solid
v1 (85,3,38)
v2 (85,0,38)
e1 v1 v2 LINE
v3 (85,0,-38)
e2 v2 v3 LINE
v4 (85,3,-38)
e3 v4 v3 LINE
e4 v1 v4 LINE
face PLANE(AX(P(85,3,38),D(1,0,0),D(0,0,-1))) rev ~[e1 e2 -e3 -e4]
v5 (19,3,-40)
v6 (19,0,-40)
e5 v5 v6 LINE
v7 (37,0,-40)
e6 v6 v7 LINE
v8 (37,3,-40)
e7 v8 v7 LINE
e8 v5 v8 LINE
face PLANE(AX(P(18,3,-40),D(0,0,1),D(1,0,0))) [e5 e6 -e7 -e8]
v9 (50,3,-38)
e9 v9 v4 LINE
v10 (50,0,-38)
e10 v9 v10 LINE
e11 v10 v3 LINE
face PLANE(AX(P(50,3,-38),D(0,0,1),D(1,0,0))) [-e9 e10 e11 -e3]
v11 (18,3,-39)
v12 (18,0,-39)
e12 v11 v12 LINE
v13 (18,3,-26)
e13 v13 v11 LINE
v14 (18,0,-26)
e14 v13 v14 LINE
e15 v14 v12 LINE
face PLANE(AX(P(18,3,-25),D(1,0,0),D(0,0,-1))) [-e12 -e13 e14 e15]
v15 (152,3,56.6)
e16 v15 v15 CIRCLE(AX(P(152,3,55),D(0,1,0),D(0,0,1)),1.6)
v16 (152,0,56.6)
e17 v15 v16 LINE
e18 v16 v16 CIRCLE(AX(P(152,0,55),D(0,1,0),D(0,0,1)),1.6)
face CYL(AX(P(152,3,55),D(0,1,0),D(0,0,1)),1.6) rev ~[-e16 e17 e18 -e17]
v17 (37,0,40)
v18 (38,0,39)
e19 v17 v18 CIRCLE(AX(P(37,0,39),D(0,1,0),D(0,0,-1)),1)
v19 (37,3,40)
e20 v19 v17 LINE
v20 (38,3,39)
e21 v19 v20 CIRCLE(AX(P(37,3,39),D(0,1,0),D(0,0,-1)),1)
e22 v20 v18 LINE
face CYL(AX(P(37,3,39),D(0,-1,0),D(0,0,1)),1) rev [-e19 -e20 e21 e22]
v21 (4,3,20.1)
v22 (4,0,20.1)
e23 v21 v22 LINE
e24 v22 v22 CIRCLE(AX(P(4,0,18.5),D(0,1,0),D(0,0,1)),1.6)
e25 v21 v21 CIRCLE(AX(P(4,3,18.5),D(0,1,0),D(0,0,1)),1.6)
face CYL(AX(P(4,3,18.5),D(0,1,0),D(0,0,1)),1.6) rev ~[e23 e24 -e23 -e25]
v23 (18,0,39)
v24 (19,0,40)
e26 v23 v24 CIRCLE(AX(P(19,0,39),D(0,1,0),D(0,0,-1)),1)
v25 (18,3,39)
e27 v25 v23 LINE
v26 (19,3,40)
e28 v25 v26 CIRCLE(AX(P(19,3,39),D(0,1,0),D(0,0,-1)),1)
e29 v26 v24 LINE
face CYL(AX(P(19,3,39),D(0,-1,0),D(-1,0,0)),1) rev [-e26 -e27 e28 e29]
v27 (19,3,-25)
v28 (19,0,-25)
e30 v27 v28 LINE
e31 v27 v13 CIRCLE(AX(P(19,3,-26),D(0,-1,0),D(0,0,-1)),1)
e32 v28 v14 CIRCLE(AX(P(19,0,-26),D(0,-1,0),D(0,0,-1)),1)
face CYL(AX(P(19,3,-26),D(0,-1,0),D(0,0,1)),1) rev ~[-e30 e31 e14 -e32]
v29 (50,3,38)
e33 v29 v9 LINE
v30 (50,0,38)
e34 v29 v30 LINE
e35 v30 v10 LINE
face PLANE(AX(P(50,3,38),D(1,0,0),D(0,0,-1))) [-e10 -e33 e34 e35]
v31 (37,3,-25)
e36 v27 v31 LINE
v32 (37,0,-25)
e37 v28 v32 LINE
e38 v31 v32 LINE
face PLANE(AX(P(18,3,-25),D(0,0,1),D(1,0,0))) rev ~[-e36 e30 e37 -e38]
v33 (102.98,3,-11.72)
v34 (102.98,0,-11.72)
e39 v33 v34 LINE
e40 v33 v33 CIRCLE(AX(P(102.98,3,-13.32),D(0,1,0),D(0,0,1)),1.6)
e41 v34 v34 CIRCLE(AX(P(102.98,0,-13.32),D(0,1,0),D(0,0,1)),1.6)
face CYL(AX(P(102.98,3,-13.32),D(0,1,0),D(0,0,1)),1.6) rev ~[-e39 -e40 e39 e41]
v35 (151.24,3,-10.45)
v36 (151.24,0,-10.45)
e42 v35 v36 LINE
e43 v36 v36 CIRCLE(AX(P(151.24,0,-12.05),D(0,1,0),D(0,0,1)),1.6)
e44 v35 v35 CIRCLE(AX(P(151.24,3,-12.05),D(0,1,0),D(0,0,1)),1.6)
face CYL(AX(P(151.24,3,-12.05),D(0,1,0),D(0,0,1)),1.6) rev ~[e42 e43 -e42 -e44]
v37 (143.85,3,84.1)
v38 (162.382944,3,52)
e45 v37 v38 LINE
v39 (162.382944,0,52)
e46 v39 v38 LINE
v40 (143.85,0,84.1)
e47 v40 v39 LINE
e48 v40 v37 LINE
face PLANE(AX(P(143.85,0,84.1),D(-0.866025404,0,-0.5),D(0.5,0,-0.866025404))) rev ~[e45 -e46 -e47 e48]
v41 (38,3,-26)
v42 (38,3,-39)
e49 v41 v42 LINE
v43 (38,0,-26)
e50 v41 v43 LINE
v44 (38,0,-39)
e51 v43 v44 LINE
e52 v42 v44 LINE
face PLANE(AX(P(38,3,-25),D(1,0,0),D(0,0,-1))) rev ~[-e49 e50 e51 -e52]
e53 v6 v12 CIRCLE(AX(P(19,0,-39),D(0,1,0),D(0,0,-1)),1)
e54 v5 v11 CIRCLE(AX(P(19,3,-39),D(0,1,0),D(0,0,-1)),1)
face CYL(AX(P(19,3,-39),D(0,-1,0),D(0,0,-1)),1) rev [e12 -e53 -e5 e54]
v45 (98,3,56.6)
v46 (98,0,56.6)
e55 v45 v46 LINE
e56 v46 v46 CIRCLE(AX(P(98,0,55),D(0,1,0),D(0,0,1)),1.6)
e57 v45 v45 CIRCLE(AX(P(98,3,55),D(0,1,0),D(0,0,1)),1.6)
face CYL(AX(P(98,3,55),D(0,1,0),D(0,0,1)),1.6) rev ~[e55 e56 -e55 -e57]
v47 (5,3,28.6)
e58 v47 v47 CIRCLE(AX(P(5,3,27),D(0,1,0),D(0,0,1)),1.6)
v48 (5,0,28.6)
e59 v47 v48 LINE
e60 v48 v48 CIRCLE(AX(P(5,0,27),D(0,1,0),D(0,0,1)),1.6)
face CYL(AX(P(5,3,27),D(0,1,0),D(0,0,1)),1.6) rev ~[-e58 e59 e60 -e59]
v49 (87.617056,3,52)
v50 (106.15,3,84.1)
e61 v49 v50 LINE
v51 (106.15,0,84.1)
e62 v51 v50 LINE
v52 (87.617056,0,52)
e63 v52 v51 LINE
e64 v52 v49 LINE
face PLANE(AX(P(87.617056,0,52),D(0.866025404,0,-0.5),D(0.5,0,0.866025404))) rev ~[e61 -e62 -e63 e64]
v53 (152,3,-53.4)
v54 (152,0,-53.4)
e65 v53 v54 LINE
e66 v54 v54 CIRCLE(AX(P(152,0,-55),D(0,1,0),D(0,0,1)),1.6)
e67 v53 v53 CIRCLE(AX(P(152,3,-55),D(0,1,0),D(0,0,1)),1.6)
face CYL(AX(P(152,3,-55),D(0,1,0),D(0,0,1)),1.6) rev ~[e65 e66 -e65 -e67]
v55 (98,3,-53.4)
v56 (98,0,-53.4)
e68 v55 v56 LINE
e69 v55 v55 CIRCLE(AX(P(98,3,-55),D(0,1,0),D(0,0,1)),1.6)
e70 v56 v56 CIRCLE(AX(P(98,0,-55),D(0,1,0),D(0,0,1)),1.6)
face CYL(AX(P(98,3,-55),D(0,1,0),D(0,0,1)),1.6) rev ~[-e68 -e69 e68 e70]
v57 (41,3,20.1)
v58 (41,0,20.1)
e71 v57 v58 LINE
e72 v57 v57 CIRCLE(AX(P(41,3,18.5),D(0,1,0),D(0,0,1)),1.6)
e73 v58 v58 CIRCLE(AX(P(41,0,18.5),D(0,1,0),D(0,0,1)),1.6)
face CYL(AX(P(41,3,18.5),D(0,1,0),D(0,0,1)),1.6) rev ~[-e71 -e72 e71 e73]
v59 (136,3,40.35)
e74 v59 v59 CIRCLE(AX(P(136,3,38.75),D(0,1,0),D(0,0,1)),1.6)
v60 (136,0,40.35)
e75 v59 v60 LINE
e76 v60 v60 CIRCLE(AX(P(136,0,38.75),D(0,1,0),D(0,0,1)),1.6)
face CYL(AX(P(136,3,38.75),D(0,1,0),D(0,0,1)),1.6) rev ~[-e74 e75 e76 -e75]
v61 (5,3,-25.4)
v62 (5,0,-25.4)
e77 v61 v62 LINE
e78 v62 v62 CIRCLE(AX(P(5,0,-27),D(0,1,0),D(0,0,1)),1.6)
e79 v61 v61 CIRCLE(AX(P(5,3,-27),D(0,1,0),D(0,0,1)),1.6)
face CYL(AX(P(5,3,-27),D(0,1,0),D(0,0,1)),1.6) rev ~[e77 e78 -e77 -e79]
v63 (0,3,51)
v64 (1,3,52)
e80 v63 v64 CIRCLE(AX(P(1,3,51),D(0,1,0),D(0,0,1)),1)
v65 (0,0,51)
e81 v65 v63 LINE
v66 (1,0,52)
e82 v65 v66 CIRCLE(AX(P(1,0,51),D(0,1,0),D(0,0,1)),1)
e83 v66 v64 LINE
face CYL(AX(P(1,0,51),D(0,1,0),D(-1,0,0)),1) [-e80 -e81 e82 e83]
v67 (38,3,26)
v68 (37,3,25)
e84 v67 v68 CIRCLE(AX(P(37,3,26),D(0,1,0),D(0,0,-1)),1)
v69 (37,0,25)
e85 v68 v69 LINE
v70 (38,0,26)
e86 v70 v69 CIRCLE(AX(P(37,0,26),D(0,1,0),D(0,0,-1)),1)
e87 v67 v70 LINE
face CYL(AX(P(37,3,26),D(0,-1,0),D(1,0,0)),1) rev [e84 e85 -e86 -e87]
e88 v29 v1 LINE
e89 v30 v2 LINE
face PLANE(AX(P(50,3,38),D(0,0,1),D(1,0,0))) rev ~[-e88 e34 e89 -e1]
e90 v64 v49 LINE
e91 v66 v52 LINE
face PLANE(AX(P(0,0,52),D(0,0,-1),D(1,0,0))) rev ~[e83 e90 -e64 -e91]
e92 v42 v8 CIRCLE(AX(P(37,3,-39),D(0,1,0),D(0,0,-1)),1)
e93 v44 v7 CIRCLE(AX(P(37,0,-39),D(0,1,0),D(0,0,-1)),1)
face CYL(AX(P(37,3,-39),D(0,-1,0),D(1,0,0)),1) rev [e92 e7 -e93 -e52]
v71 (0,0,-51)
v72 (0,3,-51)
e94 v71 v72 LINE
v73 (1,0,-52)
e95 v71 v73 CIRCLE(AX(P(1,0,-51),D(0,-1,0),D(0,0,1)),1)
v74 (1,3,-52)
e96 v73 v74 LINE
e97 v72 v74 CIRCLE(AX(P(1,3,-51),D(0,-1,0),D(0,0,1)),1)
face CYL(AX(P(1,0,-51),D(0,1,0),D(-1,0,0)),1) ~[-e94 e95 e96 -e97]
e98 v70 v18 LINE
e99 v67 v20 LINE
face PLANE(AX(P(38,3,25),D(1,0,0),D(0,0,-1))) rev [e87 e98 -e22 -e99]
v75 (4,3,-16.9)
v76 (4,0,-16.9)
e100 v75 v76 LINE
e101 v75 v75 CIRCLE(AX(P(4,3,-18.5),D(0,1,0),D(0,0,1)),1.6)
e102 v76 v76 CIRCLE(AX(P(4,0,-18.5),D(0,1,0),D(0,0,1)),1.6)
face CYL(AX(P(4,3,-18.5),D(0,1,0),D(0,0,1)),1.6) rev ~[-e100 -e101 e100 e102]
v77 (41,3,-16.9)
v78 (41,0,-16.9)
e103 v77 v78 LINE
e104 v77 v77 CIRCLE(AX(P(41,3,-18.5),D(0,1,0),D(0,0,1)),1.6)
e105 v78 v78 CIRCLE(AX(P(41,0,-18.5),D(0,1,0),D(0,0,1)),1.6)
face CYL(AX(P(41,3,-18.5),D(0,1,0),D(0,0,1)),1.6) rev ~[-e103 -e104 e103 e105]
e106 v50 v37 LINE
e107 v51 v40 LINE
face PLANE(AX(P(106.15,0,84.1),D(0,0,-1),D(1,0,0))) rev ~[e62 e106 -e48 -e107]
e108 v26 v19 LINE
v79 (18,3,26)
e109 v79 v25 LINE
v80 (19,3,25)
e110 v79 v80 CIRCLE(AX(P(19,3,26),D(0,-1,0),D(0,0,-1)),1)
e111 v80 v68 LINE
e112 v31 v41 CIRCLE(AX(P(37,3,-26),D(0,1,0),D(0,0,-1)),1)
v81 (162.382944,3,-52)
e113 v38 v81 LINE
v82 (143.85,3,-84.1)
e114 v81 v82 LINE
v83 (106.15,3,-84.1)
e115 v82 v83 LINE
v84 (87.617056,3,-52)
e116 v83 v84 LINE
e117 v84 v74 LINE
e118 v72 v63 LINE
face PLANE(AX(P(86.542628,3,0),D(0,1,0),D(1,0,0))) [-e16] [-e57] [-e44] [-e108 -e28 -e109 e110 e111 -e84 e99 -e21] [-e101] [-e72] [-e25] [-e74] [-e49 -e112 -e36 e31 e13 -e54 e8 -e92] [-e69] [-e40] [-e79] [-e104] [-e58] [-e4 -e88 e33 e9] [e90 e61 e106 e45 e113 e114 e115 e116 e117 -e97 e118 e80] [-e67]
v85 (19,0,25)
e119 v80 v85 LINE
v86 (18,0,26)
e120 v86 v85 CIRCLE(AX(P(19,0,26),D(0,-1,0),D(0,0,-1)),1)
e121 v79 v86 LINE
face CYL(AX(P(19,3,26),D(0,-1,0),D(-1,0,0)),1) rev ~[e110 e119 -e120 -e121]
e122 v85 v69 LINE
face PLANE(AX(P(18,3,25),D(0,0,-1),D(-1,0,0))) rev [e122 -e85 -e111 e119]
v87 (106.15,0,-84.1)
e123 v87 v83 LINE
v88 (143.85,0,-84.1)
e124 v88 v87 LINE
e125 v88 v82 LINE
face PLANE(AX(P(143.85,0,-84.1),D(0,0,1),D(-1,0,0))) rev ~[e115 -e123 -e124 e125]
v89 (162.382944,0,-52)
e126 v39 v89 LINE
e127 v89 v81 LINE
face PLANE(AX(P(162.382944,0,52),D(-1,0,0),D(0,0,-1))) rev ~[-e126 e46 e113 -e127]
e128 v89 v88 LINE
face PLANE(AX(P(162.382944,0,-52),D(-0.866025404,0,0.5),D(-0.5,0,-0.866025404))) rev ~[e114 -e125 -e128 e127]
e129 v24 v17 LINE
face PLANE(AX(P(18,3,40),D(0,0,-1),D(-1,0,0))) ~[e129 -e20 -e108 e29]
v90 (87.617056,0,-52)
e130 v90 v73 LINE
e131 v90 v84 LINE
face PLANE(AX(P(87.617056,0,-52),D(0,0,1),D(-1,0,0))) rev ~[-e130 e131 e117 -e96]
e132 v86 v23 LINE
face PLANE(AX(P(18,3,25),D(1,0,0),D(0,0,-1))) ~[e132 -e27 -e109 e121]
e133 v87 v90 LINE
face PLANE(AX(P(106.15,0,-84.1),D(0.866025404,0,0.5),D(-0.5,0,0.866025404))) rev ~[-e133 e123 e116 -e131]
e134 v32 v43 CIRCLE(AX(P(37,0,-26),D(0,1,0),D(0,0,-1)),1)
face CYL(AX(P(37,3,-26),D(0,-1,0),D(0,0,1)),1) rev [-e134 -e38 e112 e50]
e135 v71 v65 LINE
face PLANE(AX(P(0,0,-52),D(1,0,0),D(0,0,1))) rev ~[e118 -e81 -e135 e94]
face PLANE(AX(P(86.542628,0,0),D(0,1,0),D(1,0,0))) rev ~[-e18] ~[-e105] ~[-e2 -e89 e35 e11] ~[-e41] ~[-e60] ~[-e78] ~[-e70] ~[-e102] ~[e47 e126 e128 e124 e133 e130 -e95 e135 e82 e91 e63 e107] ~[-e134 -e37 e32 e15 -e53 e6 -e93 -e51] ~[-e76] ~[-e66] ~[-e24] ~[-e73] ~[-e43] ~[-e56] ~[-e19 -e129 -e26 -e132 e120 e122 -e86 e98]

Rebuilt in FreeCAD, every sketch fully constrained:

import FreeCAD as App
import Part
import Sketcher
Q = App.Units.Quantity


def edges_at(feature, points):
    """Names of the edges that pass closest to the given points."""
    edges = feature.Shape.Edges
    near = lambda p: min(range(len(edges)), key=lambda i: edges[i].distToShape(Part.Vertex(*p))[0])
    return sorted({f"Edge{near(p) + 1}" for p in points})


def add_polygon(sketch, points):
    """Adds a closed chain of lines whose ends are joined by coincident constraints."""
    first, n = sketch.GeometryCount, len(points)
    for a, b in zip(points, points[1:] + points[:1]):
        sketch.addGeometry(Part.LineSegment(App.Vector(*a, 0), App.Vector(*b, 0)), False)
    for i in range(n):
        sketch.addConstraint(Sketcher.Constraint("Coincident", first + i, 2, first + (i + 1) % n, 1))

doc = App.newDocument("Part")
body = doc.addObject("PartDesign::Body", "Body")

sketch1 = body.newObject("Sketcher::SketchObject", "Sketch")
sketch1.AttachmentSupport = (doc.getObject("XZ_Plane"), [""])
sketch1.MapMode = "FlatFace"
add_polygon(sketch1, [(0, -52), (0, 52), (88, 52), (106, 84), (144, 84), (162, 52), (162, -52), (144, -84), (106, -84), (88, -52)])
sketch1.addConstraint([
    Sketcher.Constraint("Vertical", 0),
    Sketcher.Constraint("Horizontal", 1),
    Sketcher.Constraint("Horizontal", 3),
    Sketcher.Constraint("Vertical", 5),
    Sketcher.Constraint("Horizontal", 7),
    Sketcher.Constraint("Horizontal", 9),
    Sketcher.Constraint("Symmetric", 0, 2, 9, 2, -1, 1),
    Sketcher.Constraint("Symmetric", 3, 2, 6, 2, -1),
    Sketcher.Constraint("Parallel", 2, 6),
    Sketcher.Constraint("Parallel", 4, 8),
    Sketcher.Constraint("Horizontal", 1, 2, 4, 2),
    Sketcher.Constraint("Horizontal", 5, 2, 8, 2),
    Sketcher.Constraint("Vertical", 2, 2, 7, 2),
    Sketcher.Constraint("DistanceY", 0, 1, 0, 2, 104.0),
    Sketcher.Constraint("Angle", 2, Q("60 deg")),
    Sketcher.Constraint("DistanceX", 3, 1, 3, 2, 37.7),
    Sketcher.Constraint("DistanceY", -1, 1, 2, 2, 84.1),
    Sketcher.Constraint("DistanceX", -1, 1, 2, 2, 106.15),
])
pad1 = body.newObject("PartDesign::Pad", "Pad")
pad1.Profile = sketch1
pad1.Length = 3
pad1.Reversed = True
doc.recompute()

fillet = body.newObject("PartDesign::Fillet", "Fillet")
fillet.Base = (pad1, edges_at(pad1, [(0, 1.5, 52), (0, 1.5, -52)]))
fillet.Radius = 1

sketch2 = body.newObject("Sketcher::SketchObject", "Sketch001")
sketch2.AttachmentSupport = (doc.getObject("XZ_Plane"), [""])
sketch2.MapMode = "FlatFace"
sketch2.AttachmentOffset = App.Placement(App.Vector(0, 0, -3), App.Rotation())
sketch2.addGeometry([
    Part.Circle(App.Vector(4, -18.5, 0), App.Vector(0, 0, 1), 1.6),
    Part.Circle(App.Vector(41, -18.5, 0), App.Vector(0, 0, 1), 1.6),
    Part.Circle(App.Vector(4, 18.5, 0), App.Vector(0, 0, 1), 1.6),
    Part.Circle(App.Vector(41, 18.5, 0), App.Vector(0, 0, 1), 1.6),
], False)
sketch2.addConstraint([
    Sketcher.Constraint("Equal", 0, 1),
    Sketcher.Constraint("Equal", 1, 2),
    Sketcher.Constraint("Equal", 2, 3),
    Sketcher.Constraint("Symmetric", 0, 3, 2, 3, -1),
    Sketcher.Constraint("Symmetric", 1, 3, 3, 3, -1),
    Sketcher.Constraint("Horizontal", 0, 3, 1, 3),
    Sketcher.Constraint("Diameter", 0, 3.2),
    Sketcher.Constraint("DistanceX", -1, 1, 0, 3, 4.0),
    Sketcher.Constraint("DistanceX", -1, 1, 1, 3, 41.0),
    Sketcher.Constraint("DistanceY", 0, 3, 2, 3, 37.0),
])
pocket1 = body.newObject("PartDesign::Pocket", "Pocket")
pocket1.Profile = sketch2
pocket1.Type = "ThroughAll"
pocket1.Reversed = True

sketch3 = body.newObject("Sketcher::SketchObject", "Sketch002")
sketch3.AttachmentSupport = (doc.getObject("XZ_Plane"), [""])
sketch3.MapMode = "FlatFace"
sketch3.AttachmentOffset = App.Placement(App.Vector(0, 0, -3), App.Rotation())
add_polygon(sketch3, [(18, -40), (18, -25), (38, -25), (38, -40)])
sketch3.addConstraint([
    Sketcher.Constraint("Vertical", 0),
    Sketcher.Constraint("Horizontal", 1),
    Sketcher.Constraint("Vertical", 2),
    Sketcher.Constraint("Horizontal", 3),
    Sketcher.Constraint("DistanceX", 1, 1, 1, 2, 20.0),
    Sketcher.Constraint("DistanceY", 0, 1, 0, 2, 15.0),
    Sketcher.Constraint("DistanceX", -1, 1, 0, 2, 18.0),
    Sketcher.Constraint("DistanceY", 0, 2, -1, 1, 25.0),
])
pocket2 = body.newObject("PartDesign::Pocket", "Pocket001")
pocket2.Profile = sketch3
pocket2.Type = "ThroughAll"
pocket2.Reversed = True
doc.recompute()

fillet2 = body.newObject("PartDesign::Fillet", "Fillet001")
fillet2.Base = (pocket2, edges_at(pocket2, [
    (38, 1.5, -40),
    (38, 1.5, -25),
    (18, 1.5, -25),
    (18, 1.5, -40),
]))
fillet2.Radius = 1
doc.recompute()

mirrored = body.newObject("PartDesign::Mirrored", "Mirrored")
mirrored.Originals = [pocket2]
mirrored.MirrorPlane = (doc.getObject("XY_Plane"), [""])
body.Tip = mirrored
doc.recompute()

fillet3 = body.newObject("PartDesign::Fillet", "Fillet002")
fillet3.Base = (mirrored, edges_at(mirrored, [
    (38, 1.5, 40),
    (38, 1.5, 25),
    (18, 1.5, 25),
    (18, 1.5, 40),
]))
fillet3.Radius = 1

sketch4 = body.newObject("Sketcher::SketchObject", "Sketch003")
sketch4.AttachmentSupport = (doc.getObject("XZ_Plane"), [""])
sketch4.MapMode = "FlatFace"
sketch4.AttachmentOffset = App.Placement(App.Vector(0, 0, -3), App.Rotation())
add_polygon(sketch4, [(50, -38), (50, 38), (85, 38), (85, -38)])
sketch4.addConstraint([
    Sketcher.Constraint("Vertical", 0),
    Sketcher.Constraint("Horizontal", 1),
    Sketcher.Constraint("Vertical", 2),
    Sketcher.Constraint("Horizontal", 3),
    Sketcher.Constraint("DistanceX", 1, 1, 1, 2, 35.0),
    Sketcher.Constraint("DistanceY", 0, 1, 0, 2, 76.0),
    Sketcher.Constraint("DistanceX", -1, 1, 0, 2, 50.0),
    Sketcher.Constraint("DistanceY", -1, 1, 0, 2, 38.0),
])
pocket3 = body.newObject("PartDesign::Pocket", "Pocket002")
pocket3.Profile = sketch4
pocket3.Type = "ThroughAll"
pocket3.Reversed = True

sketch5 = body.newObject("Sketcher::SketchObject", "Sketch004")
sketch5.AttachmentSupport = (doc.getObject("XZ_Plane"), [""])
sketch5.MapMode = "FlatFace"
sketch5.AttachmentOffset = App.Placement(App.Vector(0, 0, -3), App.Rotation())
sketch5.addGeometry([
    Part.Circle(App.Vector(136, 38.8, 0), App.Vector(0, 0, 1), 1.6),
    Part.Circle(App.Vector(151.2, -12.1, 0), App.Vector(0, 0, 1), 1.6),
    Part.Circle(App.Vector(103, -13.3, 0), App.Vector(0, 0, 1), 1.6),
], False)
sketch5.addConstraint([
    Sketcher.Constraint("Equal", 0, 1),
    Sketcher.Constraint("Equal", 1, 2),
    Sketcher.Constraint("Diameter", 0, 3.2),
    Sketcher.Constraint("DistanceX", -1, 1, 0, 3, 136.0),
    Sketcher.Constraint("DistanceY", 1, 3, 0, 3, 50.8),
    Sketcher.Constraint("DistanceY", -1, 1, 0, 3, 38.75),
    Sketcher.Constraint("DistanceX", -1, 1, 1, 3, 151.24),
    Sketcher.Constraint("DistanceX", -1, 1, 2, 3, 102.98),
    Sketcher.Constraint("DistanceY", 2, 3, -1, 1, 13.32),
])
pocket4 = body.newObject("PartDesign::Pocket", "Pocket003")
pocket4.Profile = sketch5
pocket4.Type = "ThroughAll"
pocket4.Reversed = True

sketch6 = body.newObject("Sketcher::SketchObject", "Sketch005")
sketch6.AttachmentSupport = (doc.getObject("XZ_Plane"), [""])
sketch6.MapMode = "FlatFace"
sketch6.AttachmentOffset = App.Placement(App.Vector(0, 0, -3), App.Rotation())
sketch6.addGeometry([
    Part.Circle(App.Vector(5, -27, 0), App.Vector(0, 0, 1), 1.6),
    Part.Circle(App.Vector(5, 27, 0), App.Vector(0, 0, 1), 1.6),
    Part.Circle(App.Vector(98, 55, 0), App.Vector(0, 0, 1), 1.6),
    Part.Circle(App.Vector(98, -55, 0), App.Vector(0, 0, 1), 1.6),
    Part.Circle(App.Vector(152, 55, 0), App.Vector(0, 0, 1), 1.6),
    Part.Circle(App.Vector(152, -55, 0), App.Vector(0, 0, 1), 1.6),
], False)
sketch6.addConstraint([
    Sketcher.Constraint("Equal", 0, 1),
    Sketcher.Constraint("Equal", 1, 2),
    Sketcher.Constraint("Equal", 2, 3),
    Sketcher.Constraint("Equal", 3, 4),
    Sketcher.Constraint("Equal", 4, 5),
    Sketcher.Constraint("Symmetric", 0, 3, 1, 3, -1),
    Sketcher.Constraint("Symmetric", 2, 3, 3, 3, -1),
    Sketcher.Constraint("Symmetric", 4, 3, 5, 3, -1),
    Sketcher.Constraint("Horizontal", 2, 3, 4, 3),
    Sketcher.Constraint("Diameter", 0, 3.2),
    Sketcher.Constraint("DistanceX", -1, 1, 0, 3, 5.0),
    Sketcher.Constraint("DistanceY", 0, 3, -1, 1, 27.0),
    Sketcher.Constraint("DistanceX", -1, 1, 2, 3, 98.0),
    Sketcher.Constraint("DistanceY", -1, 1, 2, 3, 55.0),
    Sketcher.Constraint("DistanceX", -1, 1, 4, 3, 152.0),
])
pocket5 = body.newObject("PartDesign::Pocket", "Pocket004")
pocket5.Profile = sketch6
pocket5.Type = "ThroughAll"
pocket5.Reversed = True

doc.recompute()
